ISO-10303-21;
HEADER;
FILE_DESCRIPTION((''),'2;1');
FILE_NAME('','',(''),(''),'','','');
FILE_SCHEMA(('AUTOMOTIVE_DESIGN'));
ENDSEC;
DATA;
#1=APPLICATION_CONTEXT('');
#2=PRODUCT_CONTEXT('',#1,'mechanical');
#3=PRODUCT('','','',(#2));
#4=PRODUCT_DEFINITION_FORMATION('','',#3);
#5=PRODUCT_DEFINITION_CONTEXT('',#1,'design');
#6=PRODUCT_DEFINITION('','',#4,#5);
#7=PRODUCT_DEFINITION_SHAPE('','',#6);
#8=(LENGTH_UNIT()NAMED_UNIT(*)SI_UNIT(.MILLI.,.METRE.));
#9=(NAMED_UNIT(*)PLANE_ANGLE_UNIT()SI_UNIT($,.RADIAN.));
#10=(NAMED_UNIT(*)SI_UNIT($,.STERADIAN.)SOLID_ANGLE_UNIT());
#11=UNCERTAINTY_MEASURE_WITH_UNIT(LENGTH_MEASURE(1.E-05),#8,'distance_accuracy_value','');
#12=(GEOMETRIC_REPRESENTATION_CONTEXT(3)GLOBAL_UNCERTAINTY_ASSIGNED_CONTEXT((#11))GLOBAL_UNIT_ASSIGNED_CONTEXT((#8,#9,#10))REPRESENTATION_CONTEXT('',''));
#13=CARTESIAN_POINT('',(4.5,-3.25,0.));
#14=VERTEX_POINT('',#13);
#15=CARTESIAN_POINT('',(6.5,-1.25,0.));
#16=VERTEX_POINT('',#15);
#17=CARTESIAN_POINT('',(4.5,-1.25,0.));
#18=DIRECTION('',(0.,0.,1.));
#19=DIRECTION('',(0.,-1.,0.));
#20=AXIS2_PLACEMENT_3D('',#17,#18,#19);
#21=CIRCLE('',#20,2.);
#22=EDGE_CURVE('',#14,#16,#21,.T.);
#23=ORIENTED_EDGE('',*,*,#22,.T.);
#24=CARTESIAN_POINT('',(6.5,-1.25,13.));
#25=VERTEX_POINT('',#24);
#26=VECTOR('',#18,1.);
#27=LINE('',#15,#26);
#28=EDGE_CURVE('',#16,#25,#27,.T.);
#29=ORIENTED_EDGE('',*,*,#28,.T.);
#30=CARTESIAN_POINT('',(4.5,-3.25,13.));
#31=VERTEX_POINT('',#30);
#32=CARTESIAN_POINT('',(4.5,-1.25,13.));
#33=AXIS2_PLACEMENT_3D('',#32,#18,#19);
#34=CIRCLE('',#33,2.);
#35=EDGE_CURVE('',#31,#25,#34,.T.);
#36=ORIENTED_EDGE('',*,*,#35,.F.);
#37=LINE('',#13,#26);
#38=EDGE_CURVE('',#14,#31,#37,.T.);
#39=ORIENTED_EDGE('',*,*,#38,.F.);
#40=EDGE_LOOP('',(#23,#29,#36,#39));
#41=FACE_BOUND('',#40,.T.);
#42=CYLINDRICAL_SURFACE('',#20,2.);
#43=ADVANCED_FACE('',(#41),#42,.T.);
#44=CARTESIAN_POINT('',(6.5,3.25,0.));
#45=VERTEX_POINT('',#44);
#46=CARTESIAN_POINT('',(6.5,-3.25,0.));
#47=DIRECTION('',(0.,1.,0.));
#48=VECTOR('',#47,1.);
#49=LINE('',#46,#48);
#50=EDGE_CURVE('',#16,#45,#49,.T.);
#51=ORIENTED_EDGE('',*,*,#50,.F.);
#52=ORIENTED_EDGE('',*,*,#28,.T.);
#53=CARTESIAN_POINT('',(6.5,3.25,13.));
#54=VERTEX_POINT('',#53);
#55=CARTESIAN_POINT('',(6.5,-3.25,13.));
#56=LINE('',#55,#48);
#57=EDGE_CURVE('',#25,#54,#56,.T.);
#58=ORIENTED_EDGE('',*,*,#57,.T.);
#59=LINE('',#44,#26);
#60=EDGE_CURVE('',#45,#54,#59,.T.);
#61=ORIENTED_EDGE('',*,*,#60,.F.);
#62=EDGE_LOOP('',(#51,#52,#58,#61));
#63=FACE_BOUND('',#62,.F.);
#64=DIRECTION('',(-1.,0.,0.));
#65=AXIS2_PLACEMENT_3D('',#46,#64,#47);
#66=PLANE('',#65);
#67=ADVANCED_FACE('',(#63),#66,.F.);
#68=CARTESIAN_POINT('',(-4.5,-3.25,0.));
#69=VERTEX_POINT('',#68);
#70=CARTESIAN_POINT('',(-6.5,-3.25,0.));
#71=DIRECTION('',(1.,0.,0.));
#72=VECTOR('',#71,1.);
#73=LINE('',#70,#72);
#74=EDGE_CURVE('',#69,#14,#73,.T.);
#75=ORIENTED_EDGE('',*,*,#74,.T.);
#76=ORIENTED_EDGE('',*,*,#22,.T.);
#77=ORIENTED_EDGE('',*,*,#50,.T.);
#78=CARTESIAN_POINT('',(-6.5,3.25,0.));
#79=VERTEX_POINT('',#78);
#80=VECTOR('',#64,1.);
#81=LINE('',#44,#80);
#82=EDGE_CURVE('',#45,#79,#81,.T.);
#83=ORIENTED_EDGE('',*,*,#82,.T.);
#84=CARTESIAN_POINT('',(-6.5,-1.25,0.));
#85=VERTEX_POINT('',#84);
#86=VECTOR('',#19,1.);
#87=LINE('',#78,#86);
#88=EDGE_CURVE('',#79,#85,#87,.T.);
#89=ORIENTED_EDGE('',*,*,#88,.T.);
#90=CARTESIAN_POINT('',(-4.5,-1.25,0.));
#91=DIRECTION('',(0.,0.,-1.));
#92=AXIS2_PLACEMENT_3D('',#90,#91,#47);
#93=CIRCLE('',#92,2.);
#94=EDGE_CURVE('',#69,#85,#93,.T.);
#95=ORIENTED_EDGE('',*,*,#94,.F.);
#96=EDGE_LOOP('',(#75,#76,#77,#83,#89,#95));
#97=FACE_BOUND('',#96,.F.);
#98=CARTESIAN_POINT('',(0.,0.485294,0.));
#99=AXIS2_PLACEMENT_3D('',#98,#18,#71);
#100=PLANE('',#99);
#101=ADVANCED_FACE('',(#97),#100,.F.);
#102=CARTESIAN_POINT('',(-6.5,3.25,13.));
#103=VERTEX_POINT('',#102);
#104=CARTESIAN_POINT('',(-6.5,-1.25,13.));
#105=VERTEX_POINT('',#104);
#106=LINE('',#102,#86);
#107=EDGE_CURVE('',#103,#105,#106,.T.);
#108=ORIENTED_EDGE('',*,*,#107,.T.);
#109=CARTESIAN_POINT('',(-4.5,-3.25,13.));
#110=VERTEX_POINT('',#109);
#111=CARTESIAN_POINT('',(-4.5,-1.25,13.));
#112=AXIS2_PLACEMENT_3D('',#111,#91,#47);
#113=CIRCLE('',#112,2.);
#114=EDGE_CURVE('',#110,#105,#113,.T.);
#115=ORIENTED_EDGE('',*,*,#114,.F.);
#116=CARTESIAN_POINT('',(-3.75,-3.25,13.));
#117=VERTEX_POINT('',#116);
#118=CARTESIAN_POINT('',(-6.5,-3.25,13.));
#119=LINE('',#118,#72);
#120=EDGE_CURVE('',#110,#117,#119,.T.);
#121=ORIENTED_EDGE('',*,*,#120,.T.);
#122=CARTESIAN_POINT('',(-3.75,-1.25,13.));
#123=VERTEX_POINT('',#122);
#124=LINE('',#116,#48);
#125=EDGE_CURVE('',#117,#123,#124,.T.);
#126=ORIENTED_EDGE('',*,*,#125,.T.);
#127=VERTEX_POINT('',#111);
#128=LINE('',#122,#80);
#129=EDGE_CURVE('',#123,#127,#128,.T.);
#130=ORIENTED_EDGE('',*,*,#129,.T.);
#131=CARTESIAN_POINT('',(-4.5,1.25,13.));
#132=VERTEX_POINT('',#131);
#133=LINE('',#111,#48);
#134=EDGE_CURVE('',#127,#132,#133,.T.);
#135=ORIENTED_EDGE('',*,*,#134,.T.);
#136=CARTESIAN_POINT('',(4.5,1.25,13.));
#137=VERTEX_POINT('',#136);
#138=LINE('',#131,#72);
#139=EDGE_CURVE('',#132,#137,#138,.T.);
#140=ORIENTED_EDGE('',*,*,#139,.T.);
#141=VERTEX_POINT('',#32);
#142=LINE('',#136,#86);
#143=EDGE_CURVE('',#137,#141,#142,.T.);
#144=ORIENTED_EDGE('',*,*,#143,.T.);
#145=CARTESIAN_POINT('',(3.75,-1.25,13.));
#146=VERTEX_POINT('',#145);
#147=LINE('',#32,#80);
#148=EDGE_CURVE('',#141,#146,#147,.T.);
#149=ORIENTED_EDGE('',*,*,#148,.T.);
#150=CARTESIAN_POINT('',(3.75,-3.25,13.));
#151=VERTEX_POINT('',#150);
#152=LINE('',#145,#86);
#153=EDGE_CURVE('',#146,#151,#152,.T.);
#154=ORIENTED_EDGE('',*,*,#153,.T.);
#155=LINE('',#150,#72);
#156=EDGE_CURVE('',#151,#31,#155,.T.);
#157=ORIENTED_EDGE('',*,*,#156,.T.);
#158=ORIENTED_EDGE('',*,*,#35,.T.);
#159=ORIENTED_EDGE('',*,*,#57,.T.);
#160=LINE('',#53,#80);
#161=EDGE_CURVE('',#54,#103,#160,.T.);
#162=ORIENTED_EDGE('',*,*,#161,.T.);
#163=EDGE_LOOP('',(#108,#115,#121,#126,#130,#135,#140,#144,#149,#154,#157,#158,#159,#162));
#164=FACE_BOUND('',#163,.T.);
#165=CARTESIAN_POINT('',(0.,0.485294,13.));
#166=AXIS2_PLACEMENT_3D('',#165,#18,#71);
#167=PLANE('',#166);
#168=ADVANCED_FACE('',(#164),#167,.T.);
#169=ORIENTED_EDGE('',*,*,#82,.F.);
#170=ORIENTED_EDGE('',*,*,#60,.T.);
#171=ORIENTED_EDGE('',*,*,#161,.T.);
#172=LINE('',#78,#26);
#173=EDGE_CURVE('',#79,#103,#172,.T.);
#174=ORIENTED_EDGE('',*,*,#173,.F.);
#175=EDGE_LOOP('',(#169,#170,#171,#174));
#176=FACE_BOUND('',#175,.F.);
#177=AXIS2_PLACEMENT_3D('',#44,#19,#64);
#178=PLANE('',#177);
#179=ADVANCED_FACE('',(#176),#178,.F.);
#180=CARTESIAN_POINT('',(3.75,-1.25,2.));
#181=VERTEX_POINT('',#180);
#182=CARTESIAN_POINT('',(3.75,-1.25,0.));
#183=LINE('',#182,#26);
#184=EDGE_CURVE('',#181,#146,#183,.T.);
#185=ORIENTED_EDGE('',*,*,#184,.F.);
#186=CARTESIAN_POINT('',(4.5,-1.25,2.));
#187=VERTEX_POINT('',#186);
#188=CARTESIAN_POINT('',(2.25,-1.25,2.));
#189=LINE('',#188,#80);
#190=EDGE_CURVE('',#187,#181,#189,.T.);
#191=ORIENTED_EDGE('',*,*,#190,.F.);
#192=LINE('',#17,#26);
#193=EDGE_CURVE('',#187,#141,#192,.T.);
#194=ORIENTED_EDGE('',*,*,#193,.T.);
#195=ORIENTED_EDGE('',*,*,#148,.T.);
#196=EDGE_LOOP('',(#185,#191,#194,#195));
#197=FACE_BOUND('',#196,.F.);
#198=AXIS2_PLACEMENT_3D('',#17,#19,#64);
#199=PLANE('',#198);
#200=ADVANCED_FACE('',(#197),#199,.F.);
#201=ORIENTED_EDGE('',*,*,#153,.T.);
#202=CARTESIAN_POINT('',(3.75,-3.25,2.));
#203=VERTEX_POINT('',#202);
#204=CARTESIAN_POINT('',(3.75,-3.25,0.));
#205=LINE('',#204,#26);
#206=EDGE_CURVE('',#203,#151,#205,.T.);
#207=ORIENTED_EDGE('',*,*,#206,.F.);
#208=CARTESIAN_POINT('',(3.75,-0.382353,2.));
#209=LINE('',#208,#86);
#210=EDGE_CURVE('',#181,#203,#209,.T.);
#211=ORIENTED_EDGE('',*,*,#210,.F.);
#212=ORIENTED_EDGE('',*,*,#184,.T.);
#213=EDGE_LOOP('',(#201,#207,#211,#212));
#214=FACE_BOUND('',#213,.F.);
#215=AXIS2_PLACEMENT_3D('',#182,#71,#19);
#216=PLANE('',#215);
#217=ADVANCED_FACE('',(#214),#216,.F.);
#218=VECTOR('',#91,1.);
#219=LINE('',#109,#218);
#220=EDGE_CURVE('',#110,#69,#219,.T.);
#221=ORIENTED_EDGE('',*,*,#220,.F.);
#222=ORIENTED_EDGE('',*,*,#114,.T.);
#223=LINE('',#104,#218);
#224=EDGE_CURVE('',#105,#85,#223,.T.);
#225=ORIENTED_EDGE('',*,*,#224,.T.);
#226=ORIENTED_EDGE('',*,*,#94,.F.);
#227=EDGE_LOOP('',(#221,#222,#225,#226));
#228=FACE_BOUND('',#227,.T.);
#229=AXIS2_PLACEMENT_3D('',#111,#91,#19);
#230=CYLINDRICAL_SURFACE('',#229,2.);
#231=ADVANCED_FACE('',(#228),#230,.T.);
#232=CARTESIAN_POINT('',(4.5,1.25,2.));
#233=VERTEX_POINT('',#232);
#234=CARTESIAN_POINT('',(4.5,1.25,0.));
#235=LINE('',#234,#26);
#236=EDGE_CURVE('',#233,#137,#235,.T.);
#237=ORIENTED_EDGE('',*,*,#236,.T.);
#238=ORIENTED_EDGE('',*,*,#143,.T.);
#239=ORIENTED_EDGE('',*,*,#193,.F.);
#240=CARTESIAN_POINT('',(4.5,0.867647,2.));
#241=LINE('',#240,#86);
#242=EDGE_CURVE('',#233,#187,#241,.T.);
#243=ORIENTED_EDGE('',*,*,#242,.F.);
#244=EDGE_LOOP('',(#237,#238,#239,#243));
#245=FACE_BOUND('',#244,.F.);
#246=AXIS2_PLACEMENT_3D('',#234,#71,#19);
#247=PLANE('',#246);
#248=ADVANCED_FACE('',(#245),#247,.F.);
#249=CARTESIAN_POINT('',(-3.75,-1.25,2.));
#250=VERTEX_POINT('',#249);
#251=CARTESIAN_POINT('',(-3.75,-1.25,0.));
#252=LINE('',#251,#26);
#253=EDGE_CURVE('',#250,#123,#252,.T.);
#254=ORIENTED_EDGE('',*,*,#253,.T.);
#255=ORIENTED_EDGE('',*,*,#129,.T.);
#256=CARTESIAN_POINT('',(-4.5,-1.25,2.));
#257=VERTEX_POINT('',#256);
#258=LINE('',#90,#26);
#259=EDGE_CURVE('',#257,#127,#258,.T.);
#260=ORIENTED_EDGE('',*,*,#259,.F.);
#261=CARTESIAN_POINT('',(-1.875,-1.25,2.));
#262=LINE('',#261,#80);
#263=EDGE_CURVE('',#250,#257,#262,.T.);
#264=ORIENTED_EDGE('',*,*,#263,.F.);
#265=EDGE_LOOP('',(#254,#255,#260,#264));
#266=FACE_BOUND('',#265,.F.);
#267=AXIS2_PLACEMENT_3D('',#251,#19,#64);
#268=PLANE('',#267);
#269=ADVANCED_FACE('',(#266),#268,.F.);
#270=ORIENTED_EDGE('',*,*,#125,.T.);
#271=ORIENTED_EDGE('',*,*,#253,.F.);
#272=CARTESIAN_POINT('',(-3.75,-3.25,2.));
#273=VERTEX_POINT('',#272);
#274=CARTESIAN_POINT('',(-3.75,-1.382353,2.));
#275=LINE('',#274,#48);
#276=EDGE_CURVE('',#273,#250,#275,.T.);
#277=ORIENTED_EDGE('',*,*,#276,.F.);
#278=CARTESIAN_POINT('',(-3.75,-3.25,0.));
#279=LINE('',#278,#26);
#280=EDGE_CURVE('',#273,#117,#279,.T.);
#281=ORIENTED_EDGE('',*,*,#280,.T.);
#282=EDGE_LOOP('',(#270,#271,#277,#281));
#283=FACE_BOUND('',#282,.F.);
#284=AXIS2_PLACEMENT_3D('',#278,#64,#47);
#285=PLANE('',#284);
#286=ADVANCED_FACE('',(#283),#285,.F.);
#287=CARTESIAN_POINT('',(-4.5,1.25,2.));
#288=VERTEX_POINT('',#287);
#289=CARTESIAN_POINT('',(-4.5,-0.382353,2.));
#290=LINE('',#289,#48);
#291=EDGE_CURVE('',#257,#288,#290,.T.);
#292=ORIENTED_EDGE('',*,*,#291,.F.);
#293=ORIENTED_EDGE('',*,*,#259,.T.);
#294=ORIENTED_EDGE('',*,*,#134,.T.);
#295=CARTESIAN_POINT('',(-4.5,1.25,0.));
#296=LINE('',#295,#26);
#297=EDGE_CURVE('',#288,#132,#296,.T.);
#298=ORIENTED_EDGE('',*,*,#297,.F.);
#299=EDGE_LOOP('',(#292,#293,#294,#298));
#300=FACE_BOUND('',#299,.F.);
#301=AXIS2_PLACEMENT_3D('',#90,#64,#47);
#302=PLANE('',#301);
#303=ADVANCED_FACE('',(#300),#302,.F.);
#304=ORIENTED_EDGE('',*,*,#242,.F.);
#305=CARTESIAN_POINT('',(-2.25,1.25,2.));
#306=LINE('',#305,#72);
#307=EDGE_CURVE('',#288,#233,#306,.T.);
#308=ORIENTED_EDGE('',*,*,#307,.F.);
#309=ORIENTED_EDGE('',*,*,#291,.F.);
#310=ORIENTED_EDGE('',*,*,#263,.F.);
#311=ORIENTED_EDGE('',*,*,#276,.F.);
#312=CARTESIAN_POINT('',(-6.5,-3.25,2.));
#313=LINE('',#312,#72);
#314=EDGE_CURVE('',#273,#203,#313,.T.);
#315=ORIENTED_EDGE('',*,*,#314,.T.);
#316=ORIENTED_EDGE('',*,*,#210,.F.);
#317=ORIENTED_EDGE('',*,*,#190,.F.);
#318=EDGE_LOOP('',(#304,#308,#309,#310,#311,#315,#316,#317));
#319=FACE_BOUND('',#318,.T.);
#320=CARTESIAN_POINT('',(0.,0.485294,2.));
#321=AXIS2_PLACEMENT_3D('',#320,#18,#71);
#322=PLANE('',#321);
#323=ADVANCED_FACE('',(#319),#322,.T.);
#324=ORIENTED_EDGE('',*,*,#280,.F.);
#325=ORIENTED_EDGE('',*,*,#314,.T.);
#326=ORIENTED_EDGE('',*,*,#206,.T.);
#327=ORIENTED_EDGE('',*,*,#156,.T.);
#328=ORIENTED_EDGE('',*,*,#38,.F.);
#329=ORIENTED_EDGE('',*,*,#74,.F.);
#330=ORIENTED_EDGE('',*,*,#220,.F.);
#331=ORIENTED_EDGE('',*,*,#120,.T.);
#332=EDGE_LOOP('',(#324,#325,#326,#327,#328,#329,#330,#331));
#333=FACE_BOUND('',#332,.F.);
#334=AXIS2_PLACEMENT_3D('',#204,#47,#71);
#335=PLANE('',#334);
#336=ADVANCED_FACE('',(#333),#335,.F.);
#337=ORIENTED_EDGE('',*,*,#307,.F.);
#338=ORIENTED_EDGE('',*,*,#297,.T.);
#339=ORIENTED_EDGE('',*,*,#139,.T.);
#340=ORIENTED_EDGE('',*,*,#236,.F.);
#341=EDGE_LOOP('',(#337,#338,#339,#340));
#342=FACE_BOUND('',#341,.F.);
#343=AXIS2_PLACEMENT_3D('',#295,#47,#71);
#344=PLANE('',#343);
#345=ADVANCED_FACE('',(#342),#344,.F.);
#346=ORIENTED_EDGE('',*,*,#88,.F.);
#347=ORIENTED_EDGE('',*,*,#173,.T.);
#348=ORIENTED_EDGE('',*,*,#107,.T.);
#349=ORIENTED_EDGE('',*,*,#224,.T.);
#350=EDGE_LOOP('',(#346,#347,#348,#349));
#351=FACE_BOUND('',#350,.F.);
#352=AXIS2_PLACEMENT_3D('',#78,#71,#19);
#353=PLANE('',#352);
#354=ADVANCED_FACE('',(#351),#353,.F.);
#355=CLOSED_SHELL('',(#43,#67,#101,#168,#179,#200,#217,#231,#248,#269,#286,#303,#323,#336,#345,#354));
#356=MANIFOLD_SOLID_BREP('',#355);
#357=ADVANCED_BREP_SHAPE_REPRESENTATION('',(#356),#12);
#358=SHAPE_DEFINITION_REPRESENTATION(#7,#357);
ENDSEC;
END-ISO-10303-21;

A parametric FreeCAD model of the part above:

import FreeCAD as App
import Part
import Sketcher
Q = App.Units.Quantity


def edges_at(feature, points):
    """Names of the edges that pass closest to the given points."""
    edges = feature.Shape.Edges
    near = lambda p: min(range(len(edges)), key=lambda i: edges[i].distToShape(Part.Vertex(*p))[0])
    return sorted({f"Edge{near(p) + 1}" for p in points})


def add_polygon(sketch, points):
    """Adds a closed chain of lines whose ends are joined by coincident constraints."""
    first, n = sketch.GeometryCount, len(points)
    for a, b in zip(points, points[1:] + points[:1]):
        sketch.addGeometry(Part.LineSegment(App.Vector(*a, 0), App.Vector(*b, 0)), False)
    for i in range(n):
        sketch.addConstraint(Sketcher.Constraint("Coincident", first + i, 2, first + (i + 1) % n, 1))

doc = App.newDocument("Part")
params = doc.addObject("Spreadsheet::Sheet", "Params")
for row, (alias, value) in enumerate([
    ("sketch1_width", "13 mm"),
    ("sketch1_width2", "9 mm"),
    ("sketch1_height", "2 mm"),
    ("sketch1_height2", "6.5 mm"),
    ("sketch1_width3", "2.75 mm"),
    ("pad1_length", "13 mm"),
    ("sketch2_width", "13 mm"),
    ("sketch2_height", "6.5 mm"),
    ("pad2_length", "2 mm"),
    ("fillet_radius", "2 mm"),
], start=1):
    params.set(f"A{row}", alias)
    params.set(f"B{row}", "=" + value)
    params.setAlias(f"B{row}", alias)

body = doc.addObject("PartDesign::Body", "Body")

# Sketch on XY plane
sketch1 = body.newObject("Sketcher::SketchObject", "Sketch")
sketch1.AttachmentSupport = (doc.getObject("XY_Plane"), [""])
sketch1.MapMode = "FlatFace"
add_polygon(sketch1, [(3.8, -3.2), (6.5, -3.2), (6.5, 3.2), (-6.5, 3.2), (-6.5, -3.2), (-3.8, -3.2), (-3.8, -1.2), (-4.5, -1.2), (-4.5, 1.2), (4.5, 1.2), (4.5, -1.2), (3.8, -1.2)])  # lines 0-11
sketch1.addConstraint([
    Sketcher.Constraint("Horizontal", 0),
    Sketcher.Constraint("Vertical", 1),
    Sketcher.Constraint("Horizontal", 2),
    Sketcher.Constraint("Vertical", 3),
    Sketcher.Constraint("Horizontal", 4),
    Sketcher.Constraint("Vertical", 5),
    Sketcher.Constraint("Horizontal", 6),
    Sketcher.Constraint("Vertical", 7),
    Sketcher.Constraint("Horizontal", 8),
    Sketcher.Constraint("Vertical", 9),
    Sketcher.Constraint("Horizontal", 10),
    Sketcher.Constraint("Vertical", 11),
    Sketcher.Constraint("Symmetric", 0, 2, 2, 2, -1, 1),
    Sketcher.Constraint("Symmetric", 6, 2, 8, 2, -1, 1),
    Sketcher.Constraint("Symmetric", 5, 2, 10, 2, -2),
    Sketcher.Constraint("Horizontal", 0, 2, 3, 2),
    Sketcher.Constraint("DistanceX", 2, 2, 2, 1, Q("13 mm")),
    Sketcher.Constraint("DistanceX", 8, 1, 8, 2, Q("9 mm")),
    Sketcher.Constraint("DistanceY", 5, 1, 5, 2, Q("2 mm")),
    Sketcher.Constraint("DistanceY", 1, 1, 1, 2, Q("6.5 mm")),
    Sketcher.Constraint("DistanceX", 0, 1, 0, 2, Q("2.75 mm")),
])
sketch1.setExpression("Constraints[28]", "Params.sketch1_width")
sketch1.setExpression("Constraints[29]", "Params.sketch1_width2")
sketch1.setExpression("Constraints[30]", "Params.sketch1_height")
sketch1.setExpression("Constraints[31]", "Params.sketch1_height2")
sketch1.setExpression("Constraints[32]", "Params.sketch1_width3")
pad1 = body.newObject("PartDesign::Pad", "Pad")
pad1.Profile = sketch1
pad1.setExpression("Length", "Params.pad1_length")

# Sketch on XY plane
sketch2 = body.newObject("Sketcher::SketchObject", "Sketch001")
sketch2.AttachmentSupport = (doc.getObject("XY_Plane"), [""])
sketch2.MapMode = "FlatFace"
add_polygon(sketch2, [(6, -3), (6, 3), (-6, 3), (-6, -3)])  # lines 0-3
sketch2.addConstraint([
    Sketcher.Constraint("Vertical", 0),
    Sketcher.Constraint("Horizontal", 1),
    Sketcher.Constraint("Vertical", 2),
    Sketcher.Constraint("Horizontal", 3),
    Sketcher.Constraint("Symmetric", 0, 2, 2, 2, -1, 1),
    Sketcher.Constraint("DistanceX", 1, 2, 1, 1, Q("13 mm")),
    Sketcher.Constraint("DistanceY", 0, 1, 0, 2, Q("6.5 mm")),
])
sketch2.setExpression("Constraints[9]", "Params.sketch2_width")
sketch2.setExpression("Constraints[10]", "Params.sketch2_height")
pad2 = body.newObject("PartDesign::Pad", "Pad001")
pad2.Profile = sketch2
pad2.setExpression("Length", "Params.pad2_length")
doc.recompute()

fillet = body.newObject("PartDesign::Fillet", "Fillet")
fillet.Base = (pad2, edges_at(pad2, [(-6.5, -3.25, 6.5), (6.5, -3.25, 6.5)]))
fillet.setExpression("Radius", "Params.fillet_radius")

doc.recompute()
